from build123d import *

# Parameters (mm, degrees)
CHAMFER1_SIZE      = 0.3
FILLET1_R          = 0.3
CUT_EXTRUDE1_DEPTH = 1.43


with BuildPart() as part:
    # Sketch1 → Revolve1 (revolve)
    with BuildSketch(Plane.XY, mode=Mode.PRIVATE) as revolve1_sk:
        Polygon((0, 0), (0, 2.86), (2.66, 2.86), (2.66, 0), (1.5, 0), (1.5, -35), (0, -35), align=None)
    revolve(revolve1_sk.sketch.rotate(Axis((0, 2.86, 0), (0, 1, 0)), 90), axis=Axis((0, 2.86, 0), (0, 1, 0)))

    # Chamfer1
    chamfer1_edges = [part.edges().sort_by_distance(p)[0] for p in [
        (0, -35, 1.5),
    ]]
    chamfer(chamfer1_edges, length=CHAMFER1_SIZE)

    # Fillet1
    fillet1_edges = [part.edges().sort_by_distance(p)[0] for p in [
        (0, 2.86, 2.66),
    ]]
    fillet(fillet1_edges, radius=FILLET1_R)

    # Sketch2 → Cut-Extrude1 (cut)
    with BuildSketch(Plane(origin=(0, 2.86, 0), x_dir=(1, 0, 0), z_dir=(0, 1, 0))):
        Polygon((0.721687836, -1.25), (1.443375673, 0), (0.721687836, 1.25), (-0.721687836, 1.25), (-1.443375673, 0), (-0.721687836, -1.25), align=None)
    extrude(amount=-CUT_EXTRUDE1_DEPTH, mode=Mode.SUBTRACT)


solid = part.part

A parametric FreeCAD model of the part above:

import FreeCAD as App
import Part
import Sketcher

V = App.Vector
Q = App.Units.Quantity


def edges_at(feature, points):
    """Names of the edges that pass closest to the given points."""
    edges = feature.Shape.Edges
    near = lambda p: min(range(len(edges)), key=lambda i: edges[i].distToShape(Part.Vertex(*p))[0])
    return sorted({f"Edge{near(p) + 1}" for p in points})

doc = App.newDocument("Part")
body = doc.addObject("PartDesign::Body", "Body")

# Sketch on XY plane
sketch1 = body.newObject("Sketcher::SketchObject", "Sketch")
sketch1.AttachmentSupport = (doc.getObject("XY_Plane"), [""])
sketch1.MapMode = "FlatFace"
sketch1.addGeometry([
    Part.LineSegment(V(0, 2.86, 0), V(0, -35, 0)),  # 0
    Part.LineSegment(V(0, -35, 0), V(1.5, -35, 0)),  # 1
    Part.LineSegment(V(1.5, -35, 0), V(1.5, 0, 0)),  # 2
    Part.LineSegment(V(1.5, 0, 0), V(2.66, 0, 0)),  # 3
    Part.LineSegment(V(2.66, 0, 0), V(2.66, 2.86, 0)),  # 4
    Part.LineSegment(V(2.66, 2.86, 0), V(0, 2.86, 0)),  # 5
], False)
sketch1.addConstraint([
    Sketcher.Constraint("Coincident", 0, 2, 1, 1),
    Sketcher.Constraint("Coincident", 1, 2, 2, 1),
    Sketcher.Constraint("Coincident", 2, 2, 3, 1),
    Sketcher.Constraint("Coincident", 3, 2, 4, 1),
    Sketcher.Constraint("Coincident", 4, 2, 5, 1),
    Sketcher.Constraint("Coincident", 5, 2, 0, 1),
    Sketcher.Constraint("Vertical", 0),
    Sketcher.Constraint("Horizontal", 1),
    Sketcher.Constraint("Vertical", 2),
    Sketcher.Constraint("Horizontal", 3),
    Sketcher.Constraint("Vertical", 4),
    Sketcher.Constraint("Horizontal", 5),
    Sketcher.Constraint("PointOnObject", 0, 2, -2),
    Sketcher.Constraint("PointOnObject", 2, 2, -1),
    Sketcher.Constraint("DistanceY", 2, 1, 2, 2, Q("35 mm")),
    Sketcher.Constraint("DistanceX", 1, 1, 1, 2, Q("1.5 mm")),
    Sketcher.Constraint("DistanceX", 3, 1, 3, 2, Q("1.16 mm")),
    Sketcher.Constraint("DistanceY", 0, 2, 0, 1, Q("37.86 mm")),
])
revolution = body.newObject("PartDesign::Revolution", "Revolution")
revolution.Profile = sketch1
revolution.ReferenceAxis = (sketch1, ["V_Axis"])
revolution.Angle = 360
doc.recompute()

chamfer = body.newObject("PartDesign::Chamfer", "Chamfer")
chamfer.Base = (revolution, edges_at(revolution, [(0, -35, 1.5)]))
chamfer.Size = 0.3
doc.recompute()

fillet = body.newObject("PartDesign::Fillet", "Fillet")
fillet.Base = (chamfer, edges_at(chamfer, [(0, 2.86, 2.66)]))
fillet.Radius = 0.3

# Sketch on XZ plane
sketch2 = body.newObject("Sketcher::SketchObject", "Sketch001")
sketch2.AttachmentSupport = (doc.getObject("XZ_Plane"), [""])
sketch2.MapMode = "FlatFace"
sketch2.AttachmentOffset = App.Placement(V(0, 0, -2.86), App.Rotation())
sketch2.addGeometry([
    Part.LineSegment(V(0.721688, 1.25, 0), V(1.443376, 0, 0)),  # 0
    Part.LineSegment(V(1.443376, 0, 0), V(0.721688, -1.25, 0)),  # 1
    Part.LineSegment(V(0.721688, -1.25, 0), V(-0.721688, -1.25, 0)),  # 2
    Part.LineSegment(V(-0.721688, -1.25, 0), V(-1.443376, 0, 0)),  # 3
    Part.LineSegment(V(-1.443376, 0, 0), V(-0.721688, 1.25, 0)),  # 4
    Part.LineSegment(V(-0.721688, 1.25, 0), V(0.721688, 1.25, 0)),  # 5
], False)
sketch2.addConstraint([
    Sketcher.Constraint("Coincident", 0, 2, 1, 1),
    Sketcher.Constraint("Coincident", 1, 2, 2, 1),
    Sketcher.Constraint("Coincident", 2, 2, 3, 1),
    Sketcher.Constraint("Coincident", 3, 2, 4, 1),
    Sketcher.Constraint("Coincident", 4, 2, 5, 1),
    Sketcher.Constraint("Coincident", 5, 2, 0, 1),
    Sketcher.Constraint("Horizontal", 2),
    Sketcher.Constraint("Horizontal", 5),
    Sketcher.Constraint("Symmetric", 0, 2, 3, 2, -1, 1),
    Sketcher.Constraint("Symmetric", 1, 2, 4, 2, -1, 1),
    Sketcher.Constraint("PointOnObject", 0, 2, -1),
    Sketcher.Constraint("Parallel", 0, 3),
    Sketcher.Constraint("Vertical", 2, 2, 4, 2),
    Sketcher.Constraint("Angle", 0, Q("-60 deg")),
    Sketcher.Constraint("DistanceY", 2, 2, 4, 2, Q("2.5 mm")),
    Sketcher.Constraint("DistanceX", 2, 2, 2, 1, Q("1.443376 mm")),
])
pocket1 = body.newObject("PartDesign::Pocket", "Pocket")
pocket1.Profile = sketch2
pocket1.Length = 1.43
pocket1.Reversed = True

doc.recompute()
